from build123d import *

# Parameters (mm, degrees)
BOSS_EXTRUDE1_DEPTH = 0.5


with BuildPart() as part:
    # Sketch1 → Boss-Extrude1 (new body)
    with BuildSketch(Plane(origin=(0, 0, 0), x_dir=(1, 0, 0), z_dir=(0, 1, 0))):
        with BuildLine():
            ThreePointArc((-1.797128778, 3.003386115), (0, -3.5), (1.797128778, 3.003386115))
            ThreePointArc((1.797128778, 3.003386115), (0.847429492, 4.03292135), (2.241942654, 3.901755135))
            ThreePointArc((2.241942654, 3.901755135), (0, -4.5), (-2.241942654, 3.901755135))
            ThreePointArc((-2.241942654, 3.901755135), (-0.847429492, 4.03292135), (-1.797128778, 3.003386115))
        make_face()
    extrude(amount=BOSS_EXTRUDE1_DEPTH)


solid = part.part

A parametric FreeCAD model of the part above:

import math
import FreeCAD as App
import Part
import Sketcher

V = App.Vector

doc = App.newDocument("Part")
body = doc.addObject("PartDesign::Body", "Body")

# Sketch on XZ plane
sketch1 = body.newObject("Sketcher::SketchObject", "Sketch")
sketch1.AttachmentSupport = (doc.getObject("XZ_Plane"), [""])
sketch1.MapMode = "FlatFace"
sketch1.addGeometry(Part.ArcOfCircle(Part.Circle(V(0, 0, 0), V(0, 0, 1), 3.5), math.radians(-59), math.radians(239)), False)
sketch1.addGeometry(Part.ArcOfCircle(Part.Circle(V(-1.5, -3.7, 0), V(0, 0, 1), 0.8), math.radians(-164), math.radians(112)), False)
sketch1.addGeometry(Part.ArcOfCircle(Part.Circle(V(0, 0, 0), V(0, 0, 1), 4.5), math.radians(-60), math.radians(240)), False)
sketch1.addGeometry(Part.ArcOfCircle(Part.Circle(V(1.5, -3.7, 0), V(0, 0, 1), 0.8), math.radians(68), math.radians(344)), False)
sketch1.addConstraint(Sketcher.Constraint("Coincident", 0, 2, 1, 2))
sketch1.addConstraint(Sketcher.Constraint("Coincident", 1, 1, 2, 2))
sketch1.addConstraint(Sketcher.Constraint("Coincident", 2, 1, 3, 2))
sketch1.addConstraint(Sketcher.Constraint("Coincident", 3, 1, 0, 1))
sketch1.addConstraint(Sketcher.Constraint("Coincident", 0, 3, -1, 1))
sketch1.addConstraint(Sketcher.Constraint("Coincident", 2, 3, -1, 1))
sketch1.addConstraint(Sketcher.Constraint("Equal", 1, 3))
sketch1.addConstraint(Sketcher.Constraint("Symmetric", 1, 3, 3, 3, -2))
sketch1.addConstraint(Sketcher.Constraint("Radius", 0, 3.5))
sketch1.addConstraint(Sketcher.Constraint("Radius", 2, 4.5))
sketch1.addConstraint(Sketcher.Constraint("Radius", 1, 0.75))
sketch1.addConstraint(Sketcher.Constraint("DistanceY", 1, 3, -1, 1, 3.70013))
sketch1.addConstraint(Sketcher.Constraint("DistanceX", 0, 2, -1, 1, 1.797129))
pad1 = body.newObject("PartDesign::Pad", "Pad")
pad1.Profile = sketch1
pad1.Length = 0.5
pad1.Reversed = True

doc.recompute()
